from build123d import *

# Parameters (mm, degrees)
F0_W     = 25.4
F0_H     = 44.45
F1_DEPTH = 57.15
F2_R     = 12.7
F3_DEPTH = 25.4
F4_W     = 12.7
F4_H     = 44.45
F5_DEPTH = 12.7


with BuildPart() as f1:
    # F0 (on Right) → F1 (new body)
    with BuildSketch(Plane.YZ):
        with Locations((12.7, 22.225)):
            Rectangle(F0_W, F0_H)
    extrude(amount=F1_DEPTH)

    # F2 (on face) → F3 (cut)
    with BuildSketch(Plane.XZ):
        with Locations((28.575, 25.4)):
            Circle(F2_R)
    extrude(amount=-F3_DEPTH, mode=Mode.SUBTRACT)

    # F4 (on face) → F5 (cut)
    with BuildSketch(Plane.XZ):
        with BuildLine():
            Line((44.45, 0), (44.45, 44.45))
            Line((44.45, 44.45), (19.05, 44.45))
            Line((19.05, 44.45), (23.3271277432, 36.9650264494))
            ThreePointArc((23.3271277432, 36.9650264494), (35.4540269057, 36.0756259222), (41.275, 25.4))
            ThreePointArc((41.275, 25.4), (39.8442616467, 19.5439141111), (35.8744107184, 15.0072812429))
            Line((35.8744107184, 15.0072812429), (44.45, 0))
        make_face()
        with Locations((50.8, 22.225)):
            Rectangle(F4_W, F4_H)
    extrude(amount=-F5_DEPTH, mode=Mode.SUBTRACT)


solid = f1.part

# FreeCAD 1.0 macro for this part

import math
import FreeCAD as App
import Part
import Sketcher

V = App.Vector
Q = App.Units.Quantity


def add_polygon(sketch, points):
    """Adds a closed chain of lines whose ends are joined by coincident constraints."""
    first, n = sketch.GeometryCount, len(points)
    for a, b in zip(points, points[1:] + points[:1]):
        sketch.addGeometry(Part.LineSegment(App.Vector(*a, 0), App.Vector(*b, 0)), False)
    for i in range(n):
        sketch.addConstraint(Sketcher.Constraint("Coincident", first + i, 2, first + (i + 1) % n, 1))

doc = App.newDocument("Part")
body = doc.addObject("PartDesign::Body", "Body")

sketch1 = body.newObject("Sketcher::SketchObject", "Sketch")
sketch1.AttachmentSupport = (doc.getObject("YZ_Plane"), [""])
sketch1.MapMode = "FlatFace"
add_polygon(sketch1, [(0, 44), (0, 0), (25, 0), (25, 44)])
sketch1.addConstraint(Sketcher.Constraint("Vertical", 0))
sketch1.addConstraint(Sketcher.Constraint("Horizontal", 1))
sketch1.addConstraint(Sketcher.Constraint("Vertical", 2))
sketch1.addConstraint(Sketcher.Constraint("Horizontal", 3))
sketch1.addConstraint(Sketcher.Constraint("Coincident", 0, 2, -1, 1))
sketch1.addConstraint(Sketcher.Constraint("DistanceX", 1, 1, 1, 2, Q("1 in")))
sketch1.addConstraint(Sketcher.Constraint("DistanceY", 0, 2, 0, 1, Q("1.75 in")))
pad1 = body.newObject("PartDesign::Pad", "Pad")
pad1.Profile = sketch1
pad1.Length = Q("2.25 in")

sketch2 = body.newObject("Sketcher::SketchObject", "Sketch001")
sketch2.AttachmentSupport = (doc.getObject("XZ_Plane"), [""])
sketch2.MapMode = "FlatFace"
sketch2.addGeometry(Part.Circle(V(29, 25, 0), V(0, 0, 1), 13), False)
sketch2.addConstraint(Sketcher.Constraint("Diameter", 0, Q("1 in")))
sketch2.addConstraint(Sketcher.Constraint("DistanceY", -1, 1, 0, 3, Q("1 in")))
sketch2.addConstraint(Sketcher.Constraint("DistanceX", -1, 1, 0, 3, Q("1.125 in")))
pocket1 = body.newObject("PartDesign::Pocket", "Pocket")
pocket1.Profile = sketch2
pocket1.Length = Q("1 in")

sketch3 = body.newObject("Sketcher::SketchObject", "Sketch002")
sketch3.AttachmentSupport = (doc.getObject("XZ_Plane"), [""])
sketch3.MapMode = "FlatFace"
sketch3.addGeometry(Part.LineSegment(V(19, 44, 0), V(23, 37, 0)), False)
sketch3.addGeometry(Part.ArcOfCircle(Part.Circle(V(29, 25, 0), V(0, 0, 1), 13), math.radians(0), math.radians(114)), False)
sketch3.addGeometry(Part.ArcOfCircle(Part.Circle(V(29, 25, 0), V(0, 0, 1), 13), math.radians(-55), math.radians(0)), False)
sketch3.addGeometry(Part.LineSegment(V(36, 15, 0), V(44, 0, 0)), False)
sketch3.addGeometry(Part.LineSegment(V(44, 0, 0), V(57, 0, 0)), False)
sketch3.addGeometry(Part.LineSegment(V(57, 0, 0), V(57, 44, 0)), False)
sketch3.addGeometry(Part.LineSegment(V(57, 44, 0), V(19, 44, 0)), False)
sketch3.addConstraint(Sketcher.Constraint("Coincident", 0, 2, 1, 2))
sketch3.addConstraint(Sketcher.Constraint("Tangent", 1, 1, 2, 2))
sketch3.addConstraint(Sketcher.Constraint("Coincident", 2, 1, 3, 1))
sketch3.addConstraint(Sketcher.Constraint("Coincident", 3, 2, 4, 1))
sketch3.addConstraint(Sketcher.Constraint("Coincident", 4, 2, 5, 1))
sketch3.addConstraint(Sketcher.Constraint("Coincident", 5, 2, 6, 1))
sketch3.addConstraint(Sketcher.Constraint("Coincident", 6, 2, 0, 1))
sketch3.addConstraint(Sketcher.Constraint("Horizontal", 4))
sketch3.addConstraint(Sketcher.Constraint("Vertical", 5))
sketch3.addConstraint(Sketcher.Constraint("Horizontal", 6))
sketch3.addConstraint(Sketcher.Constraint("Equal", 1, 2))
sketch3.addConstraint(Sketcher.Constraint("PointOnObject", 3, 2, -1))
sketch3.addConstraint(Sketcher.Constraint("Parallel", 0, 3))
sketch3.addConstraint(Sketcher.Constraint("Horizontal", 2, 3, 1, 1))
sketch3.addConstraint(Sketcher.Constraint("Radius", 1, Q("0.5 in")))
sketch3.addConstraint(Sketcher.Constraint("DistanceX", 4, 1, 4, 2, Q("0.5 in")))
sketch3.addConstraint(Sketcher.Constraint("DistanceX", 6, 2, 6, 1, Q("1.5 in")))
sketch3.addConstraint(Sketcher.Constraint("DistanceY", -1, 1, 1, 3, Q("1 in")))
sketch3.addConstraint(Sketcher.Constraint("DistanceY", 5, 1, 5, 2, Q("1.75 in")))
sketch3.addConstraint(Sketcher.Constraint("DistanceX", -1, 1, 3, 2, Q("1.75 in")))
sketch3.addConstraint(Sketcher.Constraint("DistanceX", -1, 1, 1, 3, Q("1.125 in")))
sketch3.addConstraint(Sketcher.Constraint("DistanceX", -1, 1, 2, 1, 35.874411))
pocket2 = body.newObject("PartDesign::Pocket", "Pocket001")
pocket2.Profile = sketch3
pocket2.Length = Q("0.5 in")

doc.recompute()
